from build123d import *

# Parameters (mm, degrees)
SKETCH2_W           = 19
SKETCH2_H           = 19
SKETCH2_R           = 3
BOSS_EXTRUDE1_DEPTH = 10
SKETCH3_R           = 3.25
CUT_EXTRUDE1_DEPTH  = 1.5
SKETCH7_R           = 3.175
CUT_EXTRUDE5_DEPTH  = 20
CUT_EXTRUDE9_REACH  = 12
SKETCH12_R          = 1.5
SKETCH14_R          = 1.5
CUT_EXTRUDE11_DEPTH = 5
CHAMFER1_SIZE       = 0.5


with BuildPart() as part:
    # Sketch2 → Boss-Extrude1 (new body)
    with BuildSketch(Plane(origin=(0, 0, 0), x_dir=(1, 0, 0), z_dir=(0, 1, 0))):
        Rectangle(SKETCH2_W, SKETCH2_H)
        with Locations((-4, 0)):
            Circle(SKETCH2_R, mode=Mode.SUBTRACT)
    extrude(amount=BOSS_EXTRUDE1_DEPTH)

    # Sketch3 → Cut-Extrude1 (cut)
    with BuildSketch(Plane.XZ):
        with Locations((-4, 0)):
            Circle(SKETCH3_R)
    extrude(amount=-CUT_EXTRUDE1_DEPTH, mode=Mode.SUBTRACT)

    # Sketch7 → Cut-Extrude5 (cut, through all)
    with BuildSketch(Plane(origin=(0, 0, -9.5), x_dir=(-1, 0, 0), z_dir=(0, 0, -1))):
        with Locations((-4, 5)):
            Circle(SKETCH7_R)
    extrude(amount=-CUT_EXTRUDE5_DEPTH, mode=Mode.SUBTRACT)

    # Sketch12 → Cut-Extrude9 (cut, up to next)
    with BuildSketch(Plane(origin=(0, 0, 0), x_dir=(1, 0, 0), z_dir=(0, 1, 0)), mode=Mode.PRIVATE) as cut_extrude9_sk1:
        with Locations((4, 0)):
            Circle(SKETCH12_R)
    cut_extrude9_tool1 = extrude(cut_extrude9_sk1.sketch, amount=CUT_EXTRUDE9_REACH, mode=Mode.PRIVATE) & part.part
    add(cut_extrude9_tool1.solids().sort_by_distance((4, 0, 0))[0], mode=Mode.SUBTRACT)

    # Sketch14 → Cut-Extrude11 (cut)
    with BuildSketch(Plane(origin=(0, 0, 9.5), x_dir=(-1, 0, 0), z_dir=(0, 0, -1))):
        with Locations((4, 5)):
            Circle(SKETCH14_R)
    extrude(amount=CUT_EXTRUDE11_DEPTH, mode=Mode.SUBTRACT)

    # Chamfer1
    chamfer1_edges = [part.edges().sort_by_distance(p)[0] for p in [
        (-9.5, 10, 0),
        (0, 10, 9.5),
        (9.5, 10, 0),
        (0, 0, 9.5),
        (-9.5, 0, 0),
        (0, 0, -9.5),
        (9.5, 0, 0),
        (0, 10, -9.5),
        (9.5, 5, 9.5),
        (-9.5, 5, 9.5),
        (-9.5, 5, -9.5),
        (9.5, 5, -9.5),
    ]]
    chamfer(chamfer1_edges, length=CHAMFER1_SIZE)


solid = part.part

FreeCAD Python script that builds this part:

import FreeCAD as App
import Part
import Sketcher


def edges_at(feature, points):
    """Names of the edges that pass closest to the given points."""
    edges = feature.Shape.Edges
    near = lambda p: min(range(len(edges)), key=lambda i: edges[i].distToShape(Part.Vertex(*p))[0])
    return sorted({f"Edge{near(p) + 1}" for p in points})

doc = App.newDocument("Part")
body = doc.addObject("PartDesign::Body", "Body")

sketch1 = body.newObject("Sketcher::SketchObject", "Sketch")
sketch1.AttachmentSupport = (doc.getObject("XZ_Plane"), [""])
sketch1.MapMode = "FlatFace"
sketch1.addGeometry([
    Part.LineSegment(App.Vector(-9.5, -9.5, 0), App.Vector(-9.5, 9.5, 0)),
    Part.LineSegment(App.Vector(-9.5, 9.5, 0), App.Vector(9.5, 9.5, 0)),
    Part.LineSegment(App.Vector(9.5, 9.5, 0), App.Vector(9.5, -9.5, 0)),
    Part.LineSegment(App.Vector(9.5, -9.5, 0), App.Vector(-9.5, -9.5, 0)),
    Part.Circle(App.Vector(-4, 0, 0), App.Vector(0, 0, 1), 3),
], False)
sketch1.addConstraint([
    Sketcher.Constraint("Coincident", 0, 2, 1, 1),
    Sketcher.Constraint("Coincident", 1, 2, 2, 1),
    Sketcher.Constraint("Coincident", 2, 2, 3, 1),
    Sketcher.Constraint("Coincident", 3, 2, 0, 1),
    Sketcher.Constraint("Vertical", 0),
    Sketcher.Constraint("Horizontal", 1),
    Sketcher.Constraint("Vertical", 2),
    Sketcher.Constraint("Horizontal", 3),
    Sketcher.Constraint("Symmetric", 0, 2, 2, 2, -1, 1),
    Sketcher.Constraint("PointOnObject", 4, 3, -1),
    Sketcher.Constraint("Equal", 3, 0),
    Sketcher.Constraint("Diameter", 4, 6.0),
    Sketcher.Constraint("DistanceX", 1, 1, 1, 2, 19.0),
    Sketcher.Constraint("DistanceX", 4, 3, -1, 1, 4.0),
])
pad1 = body.newObject("PartDesign::Pad", "Pad")
pad1.Profile = sketch1
pad1.Length = 10
pad1.Reversed = True

sketch2 = body.newObject("Sketcher::SketchObject", "Sketch001")
sketch2.AttachmentSupport = (doc.getObject("XZ_Plane"), [""])
sketch2.MapMode = "FlatFace"
sketch2.addGeometry(Part.Circle(App.Vector(-4, 0, 0), App.Vector(0, 0, 1), 3.25), False)
sketch2.addConstraint([
    Sketcher.Constraint("PointOnObject", 0, 3, -1),
    Sketcher.Constraint("Diameter", 0, 6.5),
    Sketcher.Constraint("DistanceX", 0, 3, -1, 1, 4.0),
])
pocket1 = body.newObject("PartDesign::Pocket", "Pocket")
pocket1.Profile = sketch2
pocket1.Length = 1.5

sketch3 = body.newObject("Sketcher::SketchObject", "Sketch002")
sketch3.AttachmentSupport = (doc.getObject("XY_Plane"), [""])
sketch3.MapMode = "FlatFace"
sketch3.AttachmentOffset = App.Placement(App.Vector(0, 0, -9.5), App.Rotation())
sketch3.addGeometry(Part.Circle(App.Vector(4, 5, 0), App.Vector(0, 0, 1), 3.175), False)
sketch3.addConstraint([
    Sketcher.Constraint("Diameter", 0, 6.35),
    Sketcher.Constraint("DistanceX", -1, 1, 0, 3, 4.0),
    Sketcher.Constraint("DistanceY", -1, 1, 0, 3, 5.0),
])
pocket2 = body.newObject("PartDesign::Pocket", "Pocket001")
pocket2.Profile = sketch3
pocket2.Type = "ThroughAll"
pocket2.Reversed = True

sketch4 = body.newObject("Sketcher::SketchObject", "Sketch003")
sketch4.AttachmentSupport = (doc.getObject("XZ_Plane"), [""])
sketch4.MapMode = "FlatFace"
sketch4.addGeometry(Part.Circle(App.Vector(4, 0, 0), App.Vector(0, 0, 1), 1.5), False)
sketch4.addConstraint([
    Sketcher.Constraint("PointOnObject", 0, 3, -1),
    Sketcher.Constraint("Diameter", 0, 3.0),
    Sketcher.Constraint("DistanceX", -1, 1, 0, 3, 4.0),
])
pocket3 = body.newObject("PartDesign::Pocket", "Pocket002")
pocket3.Profile = sketch4
pocket3.Type = "UpToFirst"

sketch5 = body.newObject("Sketcher::SketchObject", "Sketch004")
sketch5.AttachmentSupport = (doc.getObject("XY_Plane"), [""])
sketch5.MapMode = "FlatFace"
sketch5.AttachmentOffset = App.Placement(App.Vector(0, 0, 9.5), App.Rotation())
sketch5.addGeometry(Part.Circle(App.Vector(-4, 5, 0), App.Vector(0, 0, 1), 1.5), False)
sketch5.addConstraint([
    Sketcher.Constraint("Diameter", 0, 3.0),
    Sketcher.Constraint("DistanceX", 0, 3, -1, 1, 4.0),
    Sketcher.Constraint("DistanceY", -1, 1, 0, 3, 5.0),
])
pocket4 = body.newObject("PartDesign::Pocket", "Pocket003")
pocket4.Profile = sketch5
pocket4.Length = 5
doc.recompute()

chamfer = body.newObject("PartDesign::Chamfer", "Chamfer")
chamfer.Base = (pocket4, edges_at(pocket4, [
    (-9.5, 10, 0),
    (0, 10, 9.5),
    (9.5, 10, 0),
    (0, 0, 9.5),
    (-9.5, 0, 0),
    (0, 0, -9.5),
    (9.5, 0, 0),
    (0, 10, -9.5),
    (9.5, 5, 9.5),
    (-9.5, 5, 9.5),
    (-9.5, 5, -9.5),
    (9.5, 5, -9.5),
]))
chamfer.Size = 0.5

doc.recompute()
